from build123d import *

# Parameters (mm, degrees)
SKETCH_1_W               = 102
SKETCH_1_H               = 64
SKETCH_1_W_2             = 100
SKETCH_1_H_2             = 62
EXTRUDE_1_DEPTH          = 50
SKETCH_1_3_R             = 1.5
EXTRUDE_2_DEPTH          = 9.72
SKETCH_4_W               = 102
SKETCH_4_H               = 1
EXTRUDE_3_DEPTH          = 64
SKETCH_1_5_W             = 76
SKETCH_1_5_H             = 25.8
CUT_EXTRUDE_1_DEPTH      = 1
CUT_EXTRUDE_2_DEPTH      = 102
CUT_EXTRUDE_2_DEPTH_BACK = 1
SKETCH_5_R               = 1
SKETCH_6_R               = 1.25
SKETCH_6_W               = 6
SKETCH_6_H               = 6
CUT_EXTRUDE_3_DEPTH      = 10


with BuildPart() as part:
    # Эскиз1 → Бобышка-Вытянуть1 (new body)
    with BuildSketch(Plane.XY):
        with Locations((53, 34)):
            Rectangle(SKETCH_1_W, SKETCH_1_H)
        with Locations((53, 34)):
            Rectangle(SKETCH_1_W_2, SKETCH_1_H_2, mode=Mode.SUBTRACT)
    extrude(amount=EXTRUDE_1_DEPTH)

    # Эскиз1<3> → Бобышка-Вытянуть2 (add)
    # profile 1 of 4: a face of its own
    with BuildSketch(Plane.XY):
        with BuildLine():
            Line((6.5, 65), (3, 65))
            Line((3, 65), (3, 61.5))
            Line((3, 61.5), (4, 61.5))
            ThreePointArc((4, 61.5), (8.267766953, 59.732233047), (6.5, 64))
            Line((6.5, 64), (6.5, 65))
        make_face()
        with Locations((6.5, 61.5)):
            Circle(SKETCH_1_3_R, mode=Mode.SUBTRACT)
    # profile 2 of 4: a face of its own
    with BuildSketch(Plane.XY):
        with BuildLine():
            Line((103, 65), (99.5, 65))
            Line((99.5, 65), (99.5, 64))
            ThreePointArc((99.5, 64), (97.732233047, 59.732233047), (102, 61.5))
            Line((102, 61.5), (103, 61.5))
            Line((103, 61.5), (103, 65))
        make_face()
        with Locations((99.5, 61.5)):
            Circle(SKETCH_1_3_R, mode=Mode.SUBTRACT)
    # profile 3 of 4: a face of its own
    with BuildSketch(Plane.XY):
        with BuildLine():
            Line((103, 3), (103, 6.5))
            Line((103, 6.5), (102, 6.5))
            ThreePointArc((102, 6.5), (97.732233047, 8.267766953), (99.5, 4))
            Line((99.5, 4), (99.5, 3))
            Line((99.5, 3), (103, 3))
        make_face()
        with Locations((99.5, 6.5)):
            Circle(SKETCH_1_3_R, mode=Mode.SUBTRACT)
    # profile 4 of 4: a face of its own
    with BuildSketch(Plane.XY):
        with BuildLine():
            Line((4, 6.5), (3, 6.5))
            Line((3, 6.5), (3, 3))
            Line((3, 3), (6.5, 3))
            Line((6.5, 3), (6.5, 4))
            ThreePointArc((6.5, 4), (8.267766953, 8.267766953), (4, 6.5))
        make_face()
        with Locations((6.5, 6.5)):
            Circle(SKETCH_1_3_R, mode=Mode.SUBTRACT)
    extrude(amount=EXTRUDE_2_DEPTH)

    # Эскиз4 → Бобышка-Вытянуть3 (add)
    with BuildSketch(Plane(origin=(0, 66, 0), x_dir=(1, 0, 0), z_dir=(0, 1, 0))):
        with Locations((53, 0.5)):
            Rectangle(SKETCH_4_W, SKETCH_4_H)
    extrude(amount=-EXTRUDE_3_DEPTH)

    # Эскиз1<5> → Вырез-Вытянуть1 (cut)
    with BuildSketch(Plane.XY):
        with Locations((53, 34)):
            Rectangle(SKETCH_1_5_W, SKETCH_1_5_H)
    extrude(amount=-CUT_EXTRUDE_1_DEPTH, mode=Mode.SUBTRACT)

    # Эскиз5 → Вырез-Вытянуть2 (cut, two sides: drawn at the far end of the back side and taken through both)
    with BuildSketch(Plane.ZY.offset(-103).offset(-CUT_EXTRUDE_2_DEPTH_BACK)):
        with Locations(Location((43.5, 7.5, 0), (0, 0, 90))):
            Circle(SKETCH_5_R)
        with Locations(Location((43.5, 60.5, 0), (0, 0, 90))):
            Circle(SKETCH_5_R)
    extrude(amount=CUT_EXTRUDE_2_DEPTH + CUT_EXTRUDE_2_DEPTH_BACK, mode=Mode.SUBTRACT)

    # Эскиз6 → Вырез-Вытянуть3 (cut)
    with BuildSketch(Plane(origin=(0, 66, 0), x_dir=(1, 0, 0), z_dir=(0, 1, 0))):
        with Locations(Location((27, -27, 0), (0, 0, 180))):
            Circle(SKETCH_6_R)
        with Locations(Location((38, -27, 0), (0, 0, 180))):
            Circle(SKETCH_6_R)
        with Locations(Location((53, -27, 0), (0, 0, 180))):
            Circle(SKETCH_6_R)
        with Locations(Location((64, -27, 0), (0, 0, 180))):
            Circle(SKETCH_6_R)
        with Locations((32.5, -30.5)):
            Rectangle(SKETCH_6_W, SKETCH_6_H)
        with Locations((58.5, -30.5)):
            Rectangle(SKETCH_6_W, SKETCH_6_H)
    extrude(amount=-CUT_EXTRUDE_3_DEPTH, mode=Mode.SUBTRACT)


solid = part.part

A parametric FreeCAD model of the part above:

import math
import FreeCAD as App
import Part
import Sketcher
from FreeCAD import Vector

doc = App.newDocument("Part")
body = doc.addObject("PartDesign::Body", "Body")

# Sketch on XY plane
sketch1 = body.newObject("Sketcher::SketchObject", "Sketch")
sketch1.AttachmentSupport = (doc.getObject("XY_Plane"), [""])
sketch1.MapMode = "FlatFace"
sketch1.addGeometry([
    Part.LineSegment(Vector(2, 66, 0), Vector(2, 2, 0)),  # 0
    Part.LineSegment(Vector(2, 2, 0), Vector(104, 2, 0)),  # 1
    Part.LineSegment(Vector(104, 2, 0), Vector(104, 66, 0)),  # 2
    Part.LineSegment(Vector(104, 66, 0), Vector(2, 66, 0)),  # 3
    Part.LineSegment(Vector(103, 3, 0), Vector(3, 3, 0)),  # 4
    Part.LineSegment(Vector(3, 3, 0), Vector(3, 65, 0)),  # 5
    Part.LineSegment(Vector(3, 65, 0), Vector(103, 65, 0)),  # 6
    Part.LineSegment(Vector(103, 65, 0), Vector(103, 3, 0)),  # 7
], False)
sketch1.addConstraint([
    Sketcher.Constraint("Coincident", 0, 2, 1, 1),
    Sketcher.Constraint("Coincident", 1, 2, 2, 1),
    Sketcher.Constraint("Coincident", 2, 2, 3, 1),
    Sketcher.Constraint("Coincident", 3, 2, 0, 1),
    Sketcher.Constraint("Coincident", 4, 2, 5, 1),
    Sketcher.Constraint("Coincident", 5, 2, 6, 1),
    Sketcher.Constraint("Coincident", 6, 2, 7, 1),
    Sketcher.Constraint("Coincident", 7, 2, 4, 1),
    Sketcher.Constraint("Vertical", 0),
    Sketcher.Constraint("Horizontal", 1),
    Sketcher.Constraint("Vertical", 2),
    Sketcher.Constraint("Horizontal", 3),
    Sketcher.Constraint("Horizontal", 4),
    Sketcher.Constraint("Vertical", 5),
    Sketcher.Constraint("Horizontal", 6),
    Sketcher.Constraint("Vertical", 7),
    Sketcher.Constraint("DistanceX", 1, 1, 1, 2, 102.0),
    Sketcher.Constraint("DistanceX", 4, 2, 4, 1, 100.0),
    Sketcher.Constraint("DistanceY", 0, 2, 0, 1, 64.0),
    Sketcher.Constraint("DistanceY", 5, 1, 5, 2, 62.0),
    Sketcher.Constraint("DistanceX", -1, 1, 0, 2, 2.0),
    Sketcher.Constraint("DistanceY", -1, 1, 0, 2, 2.0),
    Sketcher.Constraint("DistanceX", -1, 1, 4, 2, 3.0),
    Sketcher.Constraint("DistanceY", -1, 1, 4, 2, 3.0),
])
pad1 = body.newObject("PartDesign::Pad", "Pad")
pad1.Profile = sketch1
pad1.Length = 50

# Sketch on XY plane
sketch2 = body.newObject("Sketcher::SketchObject", "Sketch001")
sketch2.AttachmentSupport = (doc.getObject("XY_Plane"), [""])
sketch2.MapMode = "FlatFace"
sketch2.addGeometry([
    Part.LineSegment(Vector(6.5, 65, 0), Vector(3, 65, 0)),  # 0
    Part.LineSegment(Vector(3, 65, 0), Vector(3, 61.5, 0)),  # 1
    Part.LineSegment(Vector(3, 61.5, 0), Vector(4, 61.5, 0)),  # 2
    Part.ArcOfCircle(Part.Circle(Vector(6.5, 61.5, 0), Vector(0, 0, 1), 2.5), math.radians(180), math.radians(450)),  # 3
    Part.LineSegment(Vector(6.5, 64, 0), Vector(6.5, 65, 0)),  # 4
    Part.Circle(Vector(6.5, 61.5, 0), Vector(0, 0, 1), 1.5),  # 5
    Part.LineSegment(Vector(103, 65, 0), Vector(99.5, 65, 0)),  # 6
    Part.LineSegment(Vector(99.5, 65, 0), Vector(99.5, 64, 0)),  # 7
    Part.ArcOfCircle(Part.Circle(Vector(99.5, 61.5, 0), Vector(0, 0, 1), 2.5), math.radians(90), math.radians(360)),  # 8
    Part.LineSegment(Vector(102, 61.5, 0), Vector(103, 61.5, 0)),  # 9
    Part.LineSegment(Vector(103, 61.5, 0), Vector(103, 65, 0)),  # 10
    Part.Circle(Vector(99.5, 61.5, 0), Vector(0, 0, 1), 1.5),  # 11
    Part.LineSegment(Vector(103, 3, 0), Vector(103, 6.5, 0)),  # 12
    Part.LineSegment(Vector(103, 6.5, 0), Vector(102, 6.5, 0)),  # 13
    Part.ArcOfCircle(Part.Circle(Vector(99.5, 6.5, 0), Vector(0, 0, 1), 2.5), math.radians(0), math.radians(270)),  # 14
    Part.LineSegment(Vector(99.5, 4, 0), Vector(99.5, 3, 0)),  # 15
    Part.LineSegment(Vector(99.5, 3, 0), Vector(103, 3, 0)),  # 16
    Part.Circle(Vector(99.5, 6.5, 0), Vector(0, 0, 1), 1.5),  # 17
    Part.LineSegment(Vector(4, 6.5, 0), Vector(3, 6.5, 0)),  # 18
    Part.LineSegment(Vector(3, 6.5, 0), Vector(3, 3, 0)),  # 19
    Part.LineSegment(Vector(3, 3, 0), Vector(6.5, 3, 0)),  # 20
    Part.LineSegment(Vector(6.5, 3, 0), Vector(6.5, 4, 0)),  # 21
    Part.ArcOfCircle(Part.Circle(Vector(6.5, 6.5, 0), Vector(0, 0, 1), 2.5), math.radians(-90), math.radians(180)),  # 22
    Part.Circle(Vector(6.5, 6.5, 0), Vector(0, 0, 1), 1.5),  # 23
], False)
sketch2.addConstraint([
    Sketcher.Constraint("Coincident", 0, 2, 1, 1),
    Sketcher.Constraint("Coincident", 1, 2, 2, 1),
    Sketcher.Constraint("Coincident", 2, 2, 3, 1),
    Sketcher.Constraint("Coincident", 3, 2, 4, 1),
    Sketcher.Constraint("Coincident", 4, 2, 0, 1),
    Sketcher.Constraint("Coincident", 6, 2, 7, 1),
    Sketcher.Constraint("Coincident", 7, 2, 8, 1),
    Sketcher.Constraint("Coincident", 8, 2, 9, 1),
    Sketcher.Constraint("Coincident", 9, 2, 10, 1),
    Sketcher.Constraint("Coincident", 10, 2, 6, 1),
    Sketcher.Constraint("Coincident", 12, 2, 13, 1),
    Sketcher.Constraint("Coincident", 13, 2, 14, 1),
    Sketcher.Constraint("Coincident", 14, 2, 15, 1),
    Sketcher.Constraint("Coincident", 15, 2, 16, 1),
    Sketcher.Constraint("Coincident", 16, 2, 12, 1),
    Sketcher.Constraint("Coincident", 18, 2, 19, 1),
    Sketcher.Constraint("Coincident", 19, 2, 20, 1),
    Sketcher.Constraint("Coincident", 20, 2, 21, 1),
    Sketcher.Constraint("Coincident", 21, 2, 22, 1),
    Sketcher.Constraint("Coincident", 22, 2, 18, 1),
    Sketcher.Constraint("Horizontal", 0),
    Sketcher.Constraint("Vertical", 1),
    Sketcher.Constraint("Horizontal", 2),
    Sketcher.Constraint("Vertical", 4),
    Sketcher.Constraint("Horizontal", 6),
    Sketcher.Constraint("Vertical", 7),
    Sketcher.Constraint("Horizontal", 9),
    Sketcher.Constraint("Vertical", 10),
    Sketcher.Constraint("Vertical", 12),
    Sketcher.Constraint("Horizontal", 13),
    Sketcher.Constraint("Vertical", 15),
    Sketcher.Constraint("Horizontal", 16),
    Sketcher.Constraint("Horizontal", 18),
    Sketcher.Constraint("Vertical", 19),
    Sketcher.Constraint("Horizontal", 20),
    Sketcher.Constraint("Vertical", 21),
    Sketcher.Constraint("Coincident", 5, 3, 3, 3),
    Sketcher.Constraint("Coincident", 11, 3, 8, 3),
    Sketcher.Constraint("Coincident", 17, 3, 14, 3),
    Sketcher.Constraint("Coincident", 23, 3, 22, 3),
    Sketcher.Constraint("Equal", 3, 8),
    Sketcher.Constraint("Equal", 5, 11),
    Sketcher.Constraint("Equal", 8, 14),
    Sketcher.Constraint("Equal", 11, 17),
    Sketcher.Constraint("Equal", 14, 22),
    Sketcher.Constraint("Equal", 17, 23),
    Sketcher.Constraint("Horizontal", 5, 3, 8, 3),
    Sketcher.Constraint("Horizontal", 17, 3, 22, 3),
    Sketcher.Constraint("Horizontal", 11, 3, 1, 2),
    Sketcher.Constraint("Horizontal", 4, 2, 6, 2),
    Sketcher.Constraint("Horizontal", 2, 2, 8, 2),
    Sketcher.Constraint("Horizontal", 23, 3, 12, 2),
    Sketcher.Constraint("Horizontal", 13, 2, 18, 2),
    Sketcher.Constraint("Horizontal", 16, 2, 19, 2),
    Sketcher.Constraint("Vertical", 11, 3, 14, 3),
    Sketcher.Constraint("Vertical", 5, 3, 22, 3),
    Sketcher.Constraint("Vertical", 23, 3, 3, 2),
    Sketcher.Constraint("Vertical", 17, 3, 6, 2),
    Sketcher.Constraint("Vertical", 10, 2, 12, 2),
    Sketcher.Constraint("Vertical", 7, 2, 14, 2),
    Sketcher.Constraint("Vertical", 1, 2, 18, 2),
    Sketcher.Constraint("Vertical", 4, 2, 20, 2),
    Sketcher.Constraint("Equal", 0, 6),
    Sketcher.Constraint("Equal", 20, 1),
    Sketcher.Constraint("Equal", 10, 12),
    Sketcher.Constraint("Diameter", 5, 3.0),
    Sketcher.Constraint("Radius", 3, 2.5),
    Sketcher.Constraint("DistanceX", 2, 1, 2, 2, 1.0),
    Sketcher.Constraint("DistanceX", -1, 1, 0, 2, 3.0),
    Sketcher.Constraint("DistanceY", -1, 1, 0, 2, 65.0),
    Sketcher.Constraint("DistanceX", -1, 1, 8, 2, 102.0),
    Sketcher.Constraint("DistanceY", -1, 1, 14, 2, 4.0),
])
pad2 = body.newObject("PartDesign::Pad", "Pad001")
pad2.Profile = sketch2
pad2.Length = 9.72

# Sketch on XZ plane
sketch3 = body.newObject("Sketcher::SketchObject", "Sketch002")
sketch3.AttachmentSupport = (doc.getObject("XZ_Plane"), [""])
sketch3.MapMode = "FlatFace"
sketch3.AttachmentOffset = App.Placement(Vector(0, 0, -66), App.Rotation())
sketch3.addGeometry([
    Part.LineSegment(Vector(2, -1, 0), Vector(2, 0, 0)),
    Part.LineSegment(Vector(2, 0, 0), Vector(104, 0, 0)),
    Part.LineSegment(Vector(104, 0, 0), Vector(104, -1, 0)),
    Part.LineSegment(Vector(104, -1, 0), Vector(2, -1, 0)),
], False)
sketch3.addConstraint([
    Sketcher.Constraint("Coincident", 0, 2, 1, 1),
    Sketcher.Constraint("Coincident", 1, 2, 2, 1),
    Sketcher.Constraint("Coincident", 2, 2, 3, 1),
    Sketcher.Constraint("Coincident", 3, 2, 0, 1),
    Sketcher.Constraint("Vertical", 0),
    Sketcher.Constraint("Horizontal", 1),
    Sketcher.Constraint("Vertical", 2),
    Sketcher.Constraint("Horizontal", 3),
    Sketcher.Constraint("PointOnObject", 0, 2, -1),
    Sketcher.Constraint("DistanceX", 1, 1, 1, 2, 102.0),
    Sketcher.Constraint("DistanceY", 0, 1, 0, 2, 1.0),
    Sketcher.Constraint("DistanceX", -1, 1, 0, 2, 2.0),
])
pad3 = body.newObject("PartDesign::Pad", "Pad002")
pad3.Profile = sketch3
pad3.Length = 64

# Sketch on XY plane
sketch4 = body.newObject("Sketcher::SketchObject", "Sketch003")
sketch4.AttachmentSupport = (doc.getObject("XY_Plane"), [""])
sketch4.MapMode = "FlatFace"
sketch4.addGeometry([
    Part.LineSegment(Vector(15, 47, 0), Vector(15, 21, 0)),
    Part.LineSegment(Vector(15, 21, 0), Vector(91, 21, 0)),
    Part.LineSegment(Vector(91, 21, 0), Vector(91, 47, 0)),
    Part.LineSegment(Vector(91, 47, 0), Vector(15, 47, 0)),
], False)
sketch4.addConstraint([
    Sketcher.Constraint("Coincident", 0, 2, 1, 1),
    Sketcher.Constraint("Coincident", 1, 2, 2, 1),
    Sketcher.Constraint("Coincident", 2, 2, 3, 1),
    Sketcher.Constraint("Coincident", 3, 2, 0, 1),
    Sketcher.Constraint("Vertical", 0),
    Sketcher.Constraint("Horizontal", 1),
    Sketcher.Constraint("Vertical", 2),
    Sketcher.Constraint("Horizontal", 3),
    Sketcher.Constraint("DistanceX", 1, 1, 1, 2, 76.0),
    Sketcher.Constraint("DistanceY", 0, 2, 0, 1, 25.8),
    Sketcher.Constraint("DistanceX", -1, 1, 0, 2, 15.0),
    Sketcher.Constraint("DistanceY", -1, 1, 0, 2, 21.1),
])
pocket1 = body.newObject("PartDesign::Pocket", "Pocket")
pocket1.Profile = sketch4
pocket1.Length = 1

# Sketch on YZ plane
sketch5 = body.newObject("Sketcher::SketchObject", "Sketch004")
sketch5.AttachmentSupport = (doc.getObject("YZ_Plane"), [""])
sketch5.MapMode = "FlatFace"
sketch5.AttachmentOffset = App.Placement(Vector(0, 0, 103), App.Rotation())
sketch5.addGeometry([
    Part.Circle(Vector(7.5, 43.5, 0), Vector(0, 0, 1), 1),
    Part.Circle(Vector(60.5, 43.5, 0), Vector(0, 0, 1), 1),
], False)
sketch5.addConstraint([
    Sketcher.Constraint("Equal", 0, 1),
    Sketcher.Constraint("Horizontal", 0, 3, 1, 3),
    Sketcher.Constraint("Diameter", 0, 2.0),
    Sketcher.Constraint("DistanceX", 0, 3, 1, 3, 53.0),
    Sketcher.Constraint("DistanceX", -1, 1, 0, 3, 7.5),
    Sketcher.Constraint("DistanceY", -1, 1, 0, 3, 43.5),
])
pocket2 = body.newObject("PartDesign::Pocket", "Pocket001")
pocket2.Profile = sketch5
pocket2.Type = "ThroughAll"
pocket2.Midplane = True

# Sketch on XZ plane
sketch6 = body.newObject("Sketcher::SketchObject", "Sketch005")
sketch6.AttachmentSupport = (doc.getObject("XZ_Plane"), [""])
sketch6.MapMode = "FlatFace"
sketch6.AttachmentOffset = App.Placement(Vector(0, 0, -66), App.Rotation())
sketch6.addGeometry([
    Part.Circle(Vector(27, 27, 0), Vector(0, 0, 1), 1.2),  # 0
    Part.Circle(Vector(38, 27, 0), Vector(0, 0, 1), 1.2),  # 1
    Part.Circle(Vector(53, 27, 0), Vector(0, 0, 1), 1.2),  # 2
    Part.Circle(Vector(64, 27, 0), Vector(0, 0, 1), 1.2),  # 3
    Part.LineSegment(Vector(29.5, 27.5, 0), Vector(29.5, 33.5, 0)),  # 4
    Part.LineSegment(Vector(29.5, 33.5, 0), Vector(35.5, 33.5, 0)),  # 5
    Part.LineSegment(Vector(35.5, 33.5, 0), Vector(35.5, 27.5, 0)),  # 6
    Part.LineSegment(Vector(35.5, 27.5, 0), Vector(29.5, 27.5, 0)),  # 7
    Part.LineSegment(Vector(55.5, 27.5, 0), Vector(55.5, 33.5, 0)),  # 8
    Part.LineSegment(Vector(55.5, 33.5, 0), Vector(61.5, 33.5, 0)),  # 9
    Part.LineSegment(Vector(61.5, 33.5, 0), Vector(61.5, 27.5, 0)),  # 10
    Part.LineSegment(Vector(61.5, 27.5, 0), Vector(55.5, 27.5, 0)),  # 11
], False)
sketch6.addConstraint([
    Sketcher.Constraint("Coincident", 4, 2, 5, 1),
    Sketcher.Constraint("Coincident", 5, 2, 6, 1),
    Sketcher.Constraint("Coincident", 6, 2, 7, 1),
    Sketcher.Constraint("Coincident", 7, 2, 4, 1),
    Sketcher.Constraint("Coincident", 8, 2, 9, 1),
    Sketcher.Constraint("Coincident", 9, 2, 10, 1),
    Sketcher.Constraint("Coincident", 10, 2, 11, 1),
    Sketcher.Constraint("Coincident", 11, 2, 8, 1),
    Sketcher.Constraint("Vertical", 4),
    Sketcher.Constraint("Horizontal", 5),
    Sketcher.Constraint("Vertical", 6),
    Sketcher.Constraint("Horizontal", 7),
    Sketcher.Constraint("Vertical", 8),
    Sketcher.Constraint("Horizontal", 9),
    Sketcher.Constraint("Vertical", 10),
    Sketcher.Constraint("Horizontal", 11),
    Sketcher.Constraint("Equal", 0, 1),
    Sketcher.Constraint("Equal", 1, 2),
    Sketcher.Constraint("Equal", 2, 3),
    Sketcher.Constraint("Horizontal", 0, 3, 1, 3),
    Sketcher.Constraint("Horizontal", 1, 3, 2, 3),
    Sketcher.Constraint("Horizontal", 2, 3, 3, 3),
    Sketcher.Constraint("Horizontal", 5, 2, 8, 2),
    Sketcher.Constraint("Horizontal", 7, 2, 10, 2),
    Sketcher.Constraint("Equal", 7, 9),
    Sketcher.Constraint("Equal", 11, 4),
    Sketcher.Constraint("Diameter", 0, 2.5),
    Sketcher.Constraint("DistanceX", 5, 1, 5, 2, 6.0),
    Sketcher.Constraint("DistanceX", -1, 1, 0, 3, 27.0),
    Sketcher.Constraint("DistanceY", -1, 1, 0, 3, 27.0),
    Sketcher.Constraint("DistanceX", -1, 1, 1, 3, 38.0),
    Sketcher.Constraint("DistanceX", -1, 1, 2, 3, 53.0),
    Sketcher.Constraint("DistanceX", -1, 1, 3, 3, 64.0),
    Sketcher.Constraint("DistanceX", 5, 2, 8, 2, 20.0),
    Sketcher.Constraint("DistanceX", -1, 1, 4, 2, 29.5),
    Sketcher.Constraint("DistanceY", -1, 1, 4, 2, 33.5),
])
pocket3 = body.newObject("PartDesign::Pocket", "Pocket002")
pocket3.Profile = sketch6
pocket3.Length = 10
pocket3.Reversed = True

doc.recompute()
